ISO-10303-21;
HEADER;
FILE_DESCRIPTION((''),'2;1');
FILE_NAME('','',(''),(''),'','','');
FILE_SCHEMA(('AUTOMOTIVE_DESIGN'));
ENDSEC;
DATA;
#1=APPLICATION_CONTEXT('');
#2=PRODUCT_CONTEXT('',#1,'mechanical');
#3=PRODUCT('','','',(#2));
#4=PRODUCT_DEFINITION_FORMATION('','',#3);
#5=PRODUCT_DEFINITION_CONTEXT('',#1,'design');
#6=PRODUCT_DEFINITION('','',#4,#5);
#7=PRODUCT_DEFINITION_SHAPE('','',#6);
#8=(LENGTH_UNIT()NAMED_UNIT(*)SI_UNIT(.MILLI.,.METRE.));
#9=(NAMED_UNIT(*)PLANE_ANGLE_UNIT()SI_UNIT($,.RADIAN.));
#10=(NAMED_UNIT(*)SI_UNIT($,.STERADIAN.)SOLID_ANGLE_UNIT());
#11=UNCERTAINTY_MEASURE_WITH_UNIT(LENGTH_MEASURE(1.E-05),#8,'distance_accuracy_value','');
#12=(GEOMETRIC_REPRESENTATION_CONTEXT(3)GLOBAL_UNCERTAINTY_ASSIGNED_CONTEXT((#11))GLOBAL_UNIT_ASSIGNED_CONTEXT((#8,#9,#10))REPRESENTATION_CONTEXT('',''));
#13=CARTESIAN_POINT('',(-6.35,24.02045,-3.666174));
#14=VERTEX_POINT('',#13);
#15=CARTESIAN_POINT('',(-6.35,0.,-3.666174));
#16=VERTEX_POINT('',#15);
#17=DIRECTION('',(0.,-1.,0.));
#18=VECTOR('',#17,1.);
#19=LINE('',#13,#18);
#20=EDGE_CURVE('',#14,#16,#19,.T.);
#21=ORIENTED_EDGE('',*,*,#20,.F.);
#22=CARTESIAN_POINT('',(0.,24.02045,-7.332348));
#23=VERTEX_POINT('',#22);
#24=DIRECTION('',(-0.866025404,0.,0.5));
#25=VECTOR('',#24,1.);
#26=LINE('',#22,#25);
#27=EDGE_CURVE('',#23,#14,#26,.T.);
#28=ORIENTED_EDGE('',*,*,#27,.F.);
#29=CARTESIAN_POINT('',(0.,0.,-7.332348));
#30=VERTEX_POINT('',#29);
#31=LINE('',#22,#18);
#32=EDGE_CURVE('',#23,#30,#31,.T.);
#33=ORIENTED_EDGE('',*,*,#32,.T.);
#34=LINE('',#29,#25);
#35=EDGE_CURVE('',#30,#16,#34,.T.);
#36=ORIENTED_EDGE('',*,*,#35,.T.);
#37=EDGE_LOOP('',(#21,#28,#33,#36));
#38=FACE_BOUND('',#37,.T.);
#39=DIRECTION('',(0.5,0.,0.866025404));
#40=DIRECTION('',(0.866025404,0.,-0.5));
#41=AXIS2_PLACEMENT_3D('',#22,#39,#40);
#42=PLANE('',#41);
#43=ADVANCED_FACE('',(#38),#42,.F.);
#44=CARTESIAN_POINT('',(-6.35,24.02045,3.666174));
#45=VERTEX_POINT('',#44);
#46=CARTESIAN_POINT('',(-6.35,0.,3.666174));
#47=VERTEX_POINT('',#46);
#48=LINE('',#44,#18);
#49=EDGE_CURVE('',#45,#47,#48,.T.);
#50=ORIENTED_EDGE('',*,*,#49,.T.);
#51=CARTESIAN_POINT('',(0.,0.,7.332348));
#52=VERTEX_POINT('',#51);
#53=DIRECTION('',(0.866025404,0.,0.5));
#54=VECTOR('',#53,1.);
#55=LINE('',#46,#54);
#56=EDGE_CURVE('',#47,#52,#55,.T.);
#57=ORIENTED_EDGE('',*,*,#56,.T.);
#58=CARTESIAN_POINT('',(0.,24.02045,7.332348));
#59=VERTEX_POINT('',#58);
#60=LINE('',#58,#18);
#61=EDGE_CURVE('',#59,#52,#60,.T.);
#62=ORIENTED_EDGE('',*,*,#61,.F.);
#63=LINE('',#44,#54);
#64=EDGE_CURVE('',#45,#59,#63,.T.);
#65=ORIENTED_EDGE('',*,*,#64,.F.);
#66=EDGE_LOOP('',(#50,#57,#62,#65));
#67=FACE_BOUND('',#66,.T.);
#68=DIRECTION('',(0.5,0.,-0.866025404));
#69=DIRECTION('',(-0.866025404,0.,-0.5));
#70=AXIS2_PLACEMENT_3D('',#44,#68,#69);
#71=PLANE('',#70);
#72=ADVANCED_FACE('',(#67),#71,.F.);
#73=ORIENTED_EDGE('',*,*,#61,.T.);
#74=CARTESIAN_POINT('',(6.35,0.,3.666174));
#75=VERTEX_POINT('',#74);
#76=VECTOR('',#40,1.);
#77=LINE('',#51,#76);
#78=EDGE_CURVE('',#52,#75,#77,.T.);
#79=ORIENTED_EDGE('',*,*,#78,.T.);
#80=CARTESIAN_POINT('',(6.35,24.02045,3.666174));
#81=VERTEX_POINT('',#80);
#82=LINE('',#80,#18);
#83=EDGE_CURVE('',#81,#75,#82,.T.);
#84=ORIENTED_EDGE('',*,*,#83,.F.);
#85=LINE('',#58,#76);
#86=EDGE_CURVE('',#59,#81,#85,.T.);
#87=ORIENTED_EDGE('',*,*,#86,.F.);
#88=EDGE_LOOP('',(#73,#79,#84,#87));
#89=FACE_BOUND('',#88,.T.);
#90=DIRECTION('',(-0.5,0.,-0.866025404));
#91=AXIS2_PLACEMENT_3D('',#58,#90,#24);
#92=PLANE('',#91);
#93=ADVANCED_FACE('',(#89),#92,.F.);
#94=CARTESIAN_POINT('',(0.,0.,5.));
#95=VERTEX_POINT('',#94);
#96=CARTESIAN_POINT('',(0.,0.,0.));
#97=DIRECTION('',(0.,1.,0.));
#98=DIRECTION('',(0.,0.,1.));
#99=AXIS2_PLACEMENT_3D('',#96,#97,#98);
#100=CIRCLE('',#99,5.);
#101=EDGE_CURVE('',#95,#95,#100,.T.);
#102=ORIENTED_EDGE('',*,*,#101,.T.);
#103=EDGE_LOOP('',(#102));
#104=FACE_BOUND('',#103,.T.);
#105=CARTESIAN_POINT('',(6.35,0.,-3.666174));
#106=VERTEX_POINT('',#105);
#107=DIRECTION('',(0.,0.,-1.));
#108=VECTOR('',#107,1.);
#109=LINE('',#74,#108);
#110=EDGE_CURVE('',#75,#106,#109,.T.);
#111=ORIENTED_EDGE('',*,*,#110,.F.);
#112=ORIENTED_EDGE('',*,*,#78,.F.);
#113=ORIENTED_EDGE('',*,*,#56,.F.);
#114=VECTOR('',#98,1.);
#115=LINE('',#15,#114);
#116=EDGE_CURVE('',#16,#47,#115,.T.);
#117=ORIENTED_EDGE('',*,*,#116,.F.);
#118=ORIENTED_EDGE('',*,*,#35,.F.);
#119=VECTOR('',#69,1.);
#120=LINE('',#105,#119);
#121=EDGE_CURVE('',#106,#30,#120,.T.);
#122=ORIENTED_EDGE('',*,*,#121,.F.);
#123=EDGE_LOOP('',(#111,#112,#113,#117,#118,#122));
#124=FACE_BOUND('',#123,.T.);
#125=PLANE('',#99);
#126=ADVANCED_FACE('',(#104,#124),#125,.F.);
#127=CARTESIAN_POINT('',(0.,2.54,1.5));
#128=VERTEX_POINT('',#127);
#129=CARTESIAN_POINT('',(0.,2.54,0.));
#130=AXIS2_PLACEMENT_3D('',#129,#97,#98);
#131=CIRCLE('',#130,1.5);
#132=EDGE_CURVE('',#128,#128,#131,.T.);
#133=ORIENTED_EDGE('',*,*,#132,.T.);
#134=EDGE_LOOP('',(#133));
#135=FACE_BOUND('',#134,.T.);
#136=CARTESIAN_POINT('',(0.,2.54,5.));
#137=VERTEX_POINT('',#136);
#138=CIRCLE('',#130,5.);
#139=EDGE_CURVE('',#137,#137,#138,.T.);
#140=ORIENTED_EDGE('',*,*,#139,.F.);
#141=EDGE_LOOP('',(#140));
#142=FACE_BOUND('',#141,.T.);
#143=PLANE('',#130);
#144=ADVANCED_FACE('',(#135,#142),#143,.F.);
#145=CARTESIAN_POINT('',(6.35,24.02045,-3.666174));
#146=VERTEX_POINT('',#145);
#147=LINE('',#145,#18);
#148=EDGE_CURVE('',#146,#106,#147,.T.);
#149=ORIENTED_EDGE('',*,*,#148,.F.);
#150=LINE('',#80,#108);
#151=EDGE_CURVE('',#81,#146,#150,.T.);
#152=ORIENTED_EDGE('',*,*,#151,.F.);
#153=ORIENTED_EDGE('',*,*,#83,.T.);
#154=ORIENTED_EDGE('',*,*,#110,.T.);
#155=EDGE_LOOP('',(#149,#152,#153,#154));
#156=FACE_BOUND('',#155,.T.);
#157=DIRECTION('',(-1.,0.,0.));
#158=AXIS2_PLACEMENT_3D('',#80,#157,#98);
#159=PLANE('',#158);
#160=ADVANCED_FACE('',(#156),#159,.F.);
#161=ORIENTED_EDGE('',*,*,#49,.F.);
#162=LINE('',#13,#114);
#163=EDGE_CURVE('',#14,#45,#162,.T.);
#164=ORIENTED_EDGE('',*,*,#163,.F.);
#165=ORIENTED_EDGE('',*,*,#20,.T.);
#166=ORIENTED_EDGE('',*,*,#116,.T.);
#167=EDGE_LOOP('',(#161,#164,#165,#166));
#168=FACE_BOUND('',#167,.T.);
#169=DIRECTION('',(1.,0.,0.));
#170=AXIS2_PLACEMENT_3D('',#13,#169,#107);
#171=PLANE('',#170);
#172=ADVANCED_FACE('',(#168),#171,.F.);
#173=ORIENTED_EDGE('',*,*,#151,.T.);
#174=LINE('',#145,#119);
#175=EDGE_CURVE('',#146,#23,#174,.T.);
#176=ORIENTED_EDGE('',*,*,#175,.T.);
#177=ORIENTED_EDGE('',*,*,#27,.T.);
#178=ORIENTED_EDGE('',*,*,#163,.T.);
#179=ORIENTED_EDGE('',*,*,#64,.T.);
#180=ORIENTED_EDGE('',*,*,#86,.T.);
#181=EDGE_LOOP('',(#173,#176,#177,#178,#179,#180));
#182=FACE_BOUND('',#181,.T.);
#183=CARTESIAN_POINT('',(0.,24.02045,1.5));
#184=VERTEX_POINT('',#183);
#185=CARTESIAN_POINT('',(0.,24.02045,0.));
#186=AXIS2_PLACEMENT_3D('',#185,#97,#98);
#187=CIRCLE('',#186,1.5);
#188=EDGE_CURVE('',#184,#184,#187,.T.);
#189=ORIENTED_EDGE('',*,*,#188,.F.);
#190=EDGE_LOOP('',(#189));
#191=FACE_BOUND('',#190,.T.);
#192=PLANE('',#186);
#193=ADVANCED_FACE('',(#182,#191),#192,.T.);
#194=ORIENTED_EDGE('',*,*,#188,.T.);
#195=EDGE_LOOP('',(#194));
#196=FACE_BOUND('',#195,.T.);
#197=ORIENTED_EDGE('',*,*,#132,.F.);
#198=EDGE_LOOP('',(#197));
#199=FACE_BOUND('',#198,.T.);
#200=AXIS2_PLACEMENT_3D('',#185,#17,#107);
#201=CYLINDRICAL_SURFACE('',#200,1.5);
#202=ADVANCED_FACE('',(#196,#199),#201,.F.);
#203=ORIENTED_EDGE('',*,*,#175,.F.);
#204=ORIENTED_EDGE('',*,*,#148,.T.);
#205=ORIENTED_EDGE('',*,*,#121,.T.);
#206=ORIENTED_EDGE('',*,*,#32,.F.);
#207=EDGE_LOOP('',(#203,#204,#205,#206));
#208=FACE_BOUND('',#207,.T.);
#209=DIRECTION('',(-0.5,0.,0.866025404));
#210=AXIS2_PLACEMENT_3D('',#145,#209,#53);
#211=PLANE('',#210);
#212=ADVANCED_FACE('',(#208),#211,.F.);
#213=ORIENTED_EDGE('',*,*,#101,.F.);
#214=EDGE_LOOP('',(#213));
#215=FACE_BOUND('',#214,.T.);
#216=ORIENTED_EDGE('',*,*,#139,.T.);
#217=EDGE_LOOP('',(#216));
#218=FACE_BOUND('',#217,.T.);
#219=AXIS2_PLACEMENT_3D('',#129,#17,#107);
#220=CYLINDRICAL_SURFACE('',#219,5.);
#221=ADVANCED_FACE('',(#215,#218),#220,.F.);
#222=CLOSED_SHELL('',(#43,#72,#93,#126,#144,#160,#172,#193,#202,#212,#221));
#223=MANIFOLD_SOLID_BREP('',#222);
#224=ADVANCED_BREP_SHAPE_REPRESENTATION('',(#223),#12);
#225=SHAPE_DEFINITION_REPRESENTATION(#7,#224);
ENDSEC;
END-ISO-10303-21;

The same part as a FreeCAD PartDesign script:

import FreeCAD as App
import Part
import Sketcher
Q = App.Units.Quantity


def add_polygon(sketch, points):
    """Adds a closed chain of lines whose ends are joined by coincident constraints."""
    first, n = sketch.GeometryCount, len(points)
    for a, b in zip(points, points[1:] + points[:1]):
        sketch.addGeometry(Part.LineSegment(App.Vector(*a, 0), App.Vector(*b, 0)), False)
    for i in range(n):
        sketch.addConstraint(Sketcher.Constraint("Coincident", first + i, 2, first + (i + 1) % n, 1))

doc = App.newDocument("Part")
params = doc.addObject("Spreadsheet::Sheet", "Params")
for row, (alias, value) in enumerate([
    ("sketch1_diameter", "3 mm"),
    ("pad1_length", "24.02045 mm"),
    ("sketch2_diameter", "10 mm"),
    ("pocket1_length", "2.54 mm"),
], start=1):
    params.set(f"A{row}", alias)
    params.set(f"B{row}", "=" + value)
    params.setAlias(f"B{row}", alias)

body = doc.addObject("PartDesign::Body", "Body")

# Sketch on XZ plane
sketch1 = body.newObject("Sketcher::SketchObject", "Sketch")
sketch1.AttachmentSupport = (doc.getObject("XZ_Plane"), [""])
sketch1.MapMode = "FlatFace"
add_polygon(sketch1, [(0, -7.332348), (-6.35, -3.666174), (-6.35, 3.666174), (0, 7.332348), (6.35, 3.666174), (6.35, -3.666174)])  # lines 0-5
sketch1.addGeometry(Part.Circle(App.Vector(0, 0, 0), App.Vector(0, 0, 1), 1.5), False)  # 6
sketch1.addConstraint([
    Sketcher.Constraint("Vertical", 1),
    Sketcher.Constraint("Vertical", 4),
    Sketcher.Constraint("Coincident", 6, 3, -1, 1),
    Sketcher.Constraint("Symmetric", 0, 2, 3, 2, -1, 1),
    Sketcher.Constraint("Symmetric", 2, 2, 5, 2, -1, 1),
    Sketcher.Constraint("PointOnObject", 2, 2, -2),
    Sketcher.Constraint("Parallel", 2, 5),
    Sketcher.Constraint("Horizontal", 1, 2, 3, 2),
    Sketcher.Constraint("Diameter", 6, 3.0),
    Sketcher.Constraint("Angle", 0, Q("150 deg")),
    Sketcher.Constraint("DistanceX", 1, 2, 3, 2, 12.7),
    Sketcher.Constraint("DistanceY", 1, 1, 1, 2, 7.332348),
])
sketch1.setExpression("Constraints[14]", "Params.sketch1_diameter")
pad1 = body.newObject("PartDesign::Pad", "Pad")
pad1.Profile = sketch1
pad1.setExpression("Length", "Params.pad1_length")
pad1.Reversed = True

# Sketch on XZ plane
sketch2 = body.newObject("Sketcher::SketchObject", "Sketch001")
sketch2.AttachmentSupport = (doc.getObject("XZ_Plane"), [""])
sketch2.MapMode = "FlatFace"
sketch2.addGeometry(Part.Circle(App.Vector(0, 0, 0), App.Vector(0, 0, 1), 5), False)
sketch2.addConstraint([
    Sketcher.Constraint("Coincident", 0, 3, -1, 1),
    Sketcher.Constraint("Diameter", 0, 10.0),
])
sketch2.setExpression("Constraints[1]", "Params.sketch2_diameter")
pocket1 = body.newObject("PartDesign::Pocket", "Pocket")
pocket1.Profile = sketch2
pocket1.setExpression("Length", "Params.pocket1_length")

doc.recompute()
